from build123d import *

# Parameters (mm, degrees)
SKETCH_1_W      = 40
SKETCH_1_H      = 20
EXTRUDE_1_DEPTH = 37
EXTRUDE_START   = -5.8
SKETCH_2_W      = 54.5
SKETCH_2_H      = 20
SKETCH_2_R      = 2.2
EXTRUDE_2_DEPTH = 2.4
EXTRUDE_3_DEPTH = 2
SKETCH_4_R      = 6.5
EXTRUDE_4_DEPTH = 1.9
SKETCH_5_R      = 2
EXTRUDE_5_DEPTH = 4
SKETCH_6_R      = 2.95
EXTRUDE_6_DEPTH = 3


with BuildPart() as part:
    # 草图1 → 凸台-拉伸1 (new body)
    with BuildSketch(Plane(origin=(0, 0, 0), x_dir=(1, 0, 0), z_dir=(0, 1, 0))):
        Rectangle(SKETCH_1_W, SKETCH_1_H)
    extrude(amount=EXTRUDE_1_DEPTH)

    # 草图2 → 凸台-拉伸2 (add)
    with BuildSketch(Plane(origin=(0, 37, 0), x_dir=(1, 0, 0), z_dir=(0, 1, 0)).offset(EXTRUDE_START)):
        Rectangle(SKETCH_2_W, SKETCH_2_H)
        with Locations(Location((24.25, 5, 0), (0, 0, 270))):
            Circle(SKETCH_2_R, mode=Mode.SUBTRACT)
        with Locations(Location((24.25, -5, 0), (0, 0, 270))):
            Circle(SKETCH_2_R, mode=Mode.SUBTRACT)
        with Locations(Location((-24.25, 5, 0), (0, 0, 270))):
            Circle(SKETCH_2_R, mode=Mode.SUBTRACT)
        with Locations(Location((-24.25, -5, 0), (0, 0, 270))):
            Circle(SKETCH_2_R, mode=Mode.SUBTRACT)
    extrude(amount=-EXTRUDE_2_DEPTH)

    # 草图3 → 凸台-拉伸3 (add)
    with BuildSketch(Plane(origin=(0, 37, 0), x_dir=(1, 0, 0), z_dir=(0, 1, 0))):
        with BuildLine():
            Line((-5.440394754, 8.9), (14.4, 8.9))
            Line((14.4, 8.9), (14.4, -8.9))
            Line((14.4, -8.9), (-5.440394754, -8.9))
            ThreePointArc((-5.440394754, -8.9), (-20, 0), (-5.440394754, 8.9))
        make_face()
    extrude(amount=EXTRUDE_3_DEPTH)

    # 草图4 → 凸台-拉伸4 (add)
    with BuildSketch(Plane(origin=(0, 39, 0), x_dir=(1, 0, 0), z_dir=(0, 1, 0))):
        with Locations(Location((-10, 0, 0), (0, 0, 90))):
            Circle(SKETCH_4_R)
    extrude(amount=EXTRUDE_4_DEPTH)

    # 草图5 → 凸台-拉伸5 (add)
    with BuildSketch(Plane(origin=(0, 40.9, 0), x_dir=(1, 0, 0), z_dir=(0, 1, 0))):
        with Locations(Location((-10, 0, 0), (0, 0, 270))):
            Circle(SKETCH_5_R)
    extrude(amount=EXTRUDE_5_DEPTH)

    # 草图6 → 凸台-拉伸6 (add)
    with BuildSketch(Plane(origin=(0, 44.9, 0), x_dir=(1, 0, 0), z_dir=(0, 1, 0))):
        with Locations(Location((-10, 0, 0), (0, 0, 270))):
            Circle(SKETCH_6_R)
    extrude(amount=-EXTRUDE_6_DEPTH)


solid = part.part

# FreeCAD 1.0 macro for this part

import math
import FreeCAD as App
import Part
import Sketcher

V = App.Vector

doc = App.newDocument("Part")
body = doc.addObject("PartDesign::Body", "Body")

# Sketch on XZ plane
sketch1 = body.newObject("Sketcher::SketchObject", "Sketch")
sketch1.AttachmentSupport = (doc.getObject("XZ_Plane"), [""])
sketch1.MapMode = "FlatFace"
sketch1.addGeometry(Part.LineSegment(V(-20, -10, 0), V(-20, 10, 0)), False)
sketch1.addGeometry(Part.LineSegment(V(-20, 10, 0), V(20, 10, 0)), False)
sketch1.addGeometry(Part.LineSegment(V(20, 10, 0), V(20, -10, 0)), False)
sketch1.addGeometry(Part.LineSegment(V(20, -10, 0), V(-20, -10, 0)), False)
sketch1.addConstraint(Sketcher.Constraint("Coincident", 0, 2, 1, 1))
sketch1.addConstraint(Sketcher.Constraint("Coincident", 1, 2, 2, 1))
sketch1.addConstraint(Sketcher.Constraint("Coincident", 2, 2, 3, 1))
sketch1.addConstraint(Sketcher.Constraint("Coincident", 3, 2, 0, 1))
sketch1.addConstraint(Sketcher.Constraint("Vertical", 0))
sketch1.addConstraint(Sketcher.Constraint("Horizontal", 1))
sketch1.addConstraint(Sketcher.Constraint("Vertical", 2))
sketch1.addConstraint(Sketcher.Constraint("Horizontal", 3))
sketch1.addConstraint(Sketcher.Constraint("Symmetric", 0, 2, 2, 2, -1, 1))
sketch1.addConstraint(Sketcher.Constraint("DistanceX", 1, 1, 1, 2, 40.0))
sketch1.addConstraint(Sketcher.Constraint("DistanceY", 0, 1, 0, 2, 20.0))
pad1 = body.newObject("PartDesign::Pad", "Pad")
pad1.Profile = sketch1
pad1.Length = 37
pad1.Reversed = True

# Sketch on XZ plane
sketch2 = body.newObject("Sketcher::SketchObject", "Sketch001")
sketch2.AttachmentSupport = (doc.getObject("XZ_Plane"), [""])
sketch2.MapMode = "FlatFace"
sketch2.AttachmentOffset = App.Placement(V(0, 0, -31.2), App.Rotation())
sketch2.addGeometry(Part.LineSegment(V(-27.2, -10, 0), V(-27.2, 10, 0)), False)
sketch2.addGeometry(Part.LineSegment(V(-27.2, 10, 0), V(27.2, 10, 0)), False)
sketch2.addGeometry(Part.LineSegment(V(27.2, 10, 0), V(27.2, -10, 0)), False)
sketch2.addGeometry(Part.LineSegment(V(27.2, -10, 0), V(-27.2, -10, 0)), False)
sketch2.addGeometry(Part.Circle(V(-24.2, 5, 0), V(0, 0, 1), 2.2), False)
sketch2.addGeometry(Part.Circle(V(24.2, 5, 0), V(0, 0, 1), 2.2), False)
sketch2.addGeometry(Part.Circle(V(-24.2, -5, 0), V(0, 0, 1), 2.2), False)
sketch2.addGeometry(Part.Circle(V(24.2, -5, 0), V(0, 0, 1), 2.2), False)
sketch2.addConstraint(Sketcher.Constraint("Coincident", 0, 2, 1, 1))
sketch2.addConstraint(Sketcher.Constraint("Coincident", 1, 2, 2, 1))
sketch2.addConstraint(Sketcher.Constraint("Coincident", 2, 2, 3, 1))
sketch2.addConstraint(Sketcher.Constraint("Coincident", 3, 2, 0, 1))
sketch2.addConstraint(Sketcher.Constraint("Vertical", 0))
sketch2.addConstraint(Sketcher.Constraint("Horizontal", 1))
sketch2.addConstraint(Sketcher.Constraint("Vertical", 2))
sketch2.addConstraint(Sketcher.Constraint("Horizontal", 3))
sketch2.addConstraint(Sketcher.Constraint("Equal", 4, 5))
sketch2.addConstraint(Sketcher.Constraint("Equal", 5, 6))
sketch2.addConstraint(Sketcher.Constraint("Equal", 6, 7))
sketch2.addConstraint(Sketcher.Constraint("Symmetric", 5, 3, 6, 3, -1, 1))
sketch2.addConstraint(Sketcher.Constraint("Symmetric", 4, 3, 7, 3, -1, 1))
sketch2.addConstraint(Sketcher.Constraint("Symmetric", 0, 2, 2, 2, -1, 1))
sketch2.addConstraint(Sketcher.Constraint("Symmetric", 4, 3, 5, 3, -2))
sketch2.addConstraint(Sketcher.Constraint("Diameter", 4, 4.4))
sketch2.addConstraint(Sketcher.Constraint("DistanceY", 0, 1, 0, 2, 20.0))
sketch2.addConstraint(Sketcher.Constraint("DistanceX", 1, 1, 1, 2, 54.5))
sketch2.addConstraint(Sketcher.Constraint("DistanceY", -1, 1, 4, 3, 5.0))
sketch2.addConstraint(Sketcher.Constraint("DistanceX", 0, 2, 4, 3, 3.0))
pad2 = body.newObject("PartDesign::Pad", "Pad001")
pad2.Profile = sketch2
pad2.Length = 2.4

# Sketch on XZ plane
sketch3 = body.newObject("Sketcher::SketchObject", "Sketch002")
sketch3.AttachmentSupport = (doc.getObject("XZ_Plane"), [""])
sketch3.MapMode = "FlatFace"
sketch3.AttachmentOffset = App.Placement(V(0, 0, -37), App.Rotation())
sketch3.addGeometry(Part.LineSegment(V(14, -9, 0), V(-5, -9, 0)), False)
sketch3.addGeometry(Part.ArcOfCircle(Part.Circle(V(-10, 0, 0), V(0, 0, 1), 10), math.radians(63), math.radians(297)), False)
sketch3.addGeometry(Part.LineSegment(V(-5, 9, 0), V(14, 9, 0)), False)
sketch3.addGeometry(Part.LineSegment(V(14, 9, 0), V(14, -9, 0)), False)
sketch3.addConstraint(Sketcher.Constraint("Coincident", 0, 2, 1, 2))
sketch3.addConstraint(Sketcher.Constraint("Coincident", 1, 1, 2, 1))
sketch3.addConstraint(Sketcher.Constraint("Coincident", 2, 2, 3, 1))
sketch3.addConstraint(Sketcher.Constraint("Coincident", 3, 2, 0, 1))
sketch3.addConstraint(Sketcher.Constraint("Horizontal", 0))
sketch3.addConstraint(Sketcher.Constraint("Horizontal", 2))
sketch3.addConstraint(Sketcher.Constraint("Vertical", 3))
sketch3.addConstraint(Sketcher.Constraint("Symmetric", 0, 2, 1, 1, -1))
sketch3.addConstraint(Sketcher.Constraint("Radius", 1, 10.0))
sketch3.addConstraint(Sketcher.Constraint("DistanceY", 3, 2, 3, 1, 17.8))
sketch3.addConstraint(Sketcher.Constraint("DistanceX", 1, 3, -1, 1, 10.0))
sketch3.addConstraint(Sketcher.Constraint("DistanceX", -1, 1, 2, 2, 14.4))
pad3 = body.newObject("PartDesign::Pad", "Pad002")
pad3.Profile = sketch3
pad3.Length = 2
pad3.Reversed = True

# Sketch on XZ plane
sketch4 = body.newObject("Sketcher::SketchObject", "Sketch003")
sketch4.AttachmentSupport = (doc.getObject("XZ_Plane"), [""])
sketch4.MapMode = "FlatFace"
sketch4.AttachmentOffset = App.Placement(V(0, 0, -39), App.Rotation())
sketch4.addGeometry(Part.Circle(V(-10, 0, 0), V(0, 0, 1), 6), False)
sketch4.addConstraint(Sketcher.Constraint("PointOnObject", 0, 3, -1))
sketch4.addConstraint(Sketcher.Constraint("Diameter", 0, 13.0))
sketch4.addConstraint(Sketcher.Constraint("DistanceX", 0, 3, -1, 1, 10.0))
pad4 = body.newObject("PartDesign::Pad", "Pad003")
pad4.Profile = sketch4
pad4.Length = 1.9
pad4.Reversed = True

# Sketch on XZ plane
sketch5 = body.newObject("Sketcher::SketchObject", "Sketch004")
sketch5.AttachmentSupport = (doc.getObject("XZ_Plane"), [""])
sketch5.MapMode = "FlatFace"
sketch5.AttachmentOffset = App.Placement(V(0, 0, -40.9), App.Rotation())
sketch5.addGeometry(Part.Circle(V(-10, 0, 0), V(0, 0, 1), 2), False)
sketch5.addConstraint(Sketcher.Constraint("PointOnObject", 0, 3, -1))
sketch5.addConstraint(Sketcher.Constraint("Diameter", 0, 4.0))
sketch5.addConstraint(Sketcher.Constraint("DistanceX", 0, 3, -1, 1, 10.0))
pad5 = body.newObject("PartDesign::Pad", "Pad004")
pad5.Profile = sketch5
pad5.Length = 4
pad5.Reversed = True

# Sketch on XZ plane
sketch6 = body.newObject("Sketcher::SketchObject", "Sketch005")
sketch6.AttachmentSupport = (doc.getObject("XZ_Plane"), [""])
sketch6.MapMode = "FlatFace"
sketch6.AttachmentOffset = App.Placement(V(0, 0, -44.9), App.Rotation())
sketch6.addGeometry(Part.Circle(V(-10, 0, 0), V(0, 0, 1), 3), False)
sketch6.addConstraint(Sketcher.Constraint("PointOnObject", 0, 3, -1))
sketch6.addConstraint(Sketcher.Constraint("Diameter", 0, 5.9))
sketch6.addConstraint(Sketcher.Constraint("DistanceX", 0, 3, -1, 1, 10.0))
pad6 = body.newObject("PartDesign::Pad", "Pad005")
pad6.Profile = sketch6
pad6.Length = 3

doc.recompute()
